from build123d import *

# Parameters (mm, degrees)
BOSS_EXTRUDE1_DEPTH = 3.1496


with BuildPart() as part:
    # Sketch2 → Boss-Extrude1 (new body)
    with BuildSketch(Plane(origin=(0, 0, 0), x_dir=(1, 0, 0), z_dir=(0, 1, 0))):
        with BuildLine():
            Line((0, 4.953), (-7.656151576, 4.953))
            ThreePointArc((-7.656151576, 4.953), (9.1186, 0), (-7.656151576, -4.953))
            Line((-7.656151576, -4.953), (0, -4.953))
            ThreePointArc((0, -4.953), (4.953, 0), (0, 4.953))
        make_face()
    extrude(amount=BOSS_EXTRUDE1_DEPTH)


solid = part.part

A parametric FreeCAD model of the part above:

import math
import FreeCAD as App
import Part
import Sketcher

V = App.Vector
Q = App.Units.Quantity

doc = App.newDocument("Part")
params = doc.addObject("Spreadsheet::Sheet", "Params")
for row, (alias, value) in enumerate([
    ("sketch1_radius", "0.195 in"),
    ("sketch1_radius2", "0.359 in"),
    ("pad1_length", "0.124 in"),
], start=1):
    params.set(f"A{row}", alias)
    params.set(f"B{row}", "=" + value)
    params.setAlias(f"B{row}", alias)

body = doc.addObject("PartDesign::Body", "Body")

# Sketch on XZ plane
sketch1 = doc.addObject("Sketcher::SketchObject", "Sketch")
body.addObject(sketch1)
sketch1.AttachmentSupport = (doc.XZ_Plane, [""])
sketch1.MapMode = "FlatFace"
sketch1.addGeometry([
    Part.LineSegment(V(-7.7, -5, 0), V(0, -5, 0)),
    Part.ArcOfCircle(Part.Circle(V(0, 0, 0), V(0, 0, 1), 5), math.radians(-90), math.radians(90)),
    Part.LineSegment(V(0, 5, 0), V(-7.7, 5, 0)),
    Part.ArcOfCircle(Part.Circle(V(0, 0, 0), V(0, 0, 1), 9.1), math.radians(-147), math.radians(147)),
], False)
sketch1.addConstraint([
    Sketcher.Constraint("Tangent", 0, 2, 1, 1),
    Sketcher.Constraint("Tangent", 1, 2, 2, 1),
    Sketcher.Constraint("Coincident", 2, 2, 3, 2),
    Sketcher.Constraint("Coincident", 3, 1, 0, 1),
    Sketcher.Constraint("Horizontal", 0),
    Sketcher.Constraint("Horizontal", 2),
    Sketcher.Constraint("Coincident", 1, 3, -1, 1),
    Sketcher.Constraint("Coincident", 3, 3, -1, 1),
    Sketcher.Constraint("Radius", 1, Q("0.195 in")),
    Sketcher.Constraint("Radius", 3, Q("0.359 in")),
])
sketch1.setExpression("Constraints[8]", "Params.sketch1_radius")
sketch1.setExpression("Constraints[9]", "Params.sketch1_radius2")
pad1 = doc.addObject("PartDesign::Pad", "Pad")
body.addObject(pad1)
pad1.Profile = sketch1
pad1.setExpression("Length", "Params.pad1_length")
pad1.Reversed = True

doc.recompute()
